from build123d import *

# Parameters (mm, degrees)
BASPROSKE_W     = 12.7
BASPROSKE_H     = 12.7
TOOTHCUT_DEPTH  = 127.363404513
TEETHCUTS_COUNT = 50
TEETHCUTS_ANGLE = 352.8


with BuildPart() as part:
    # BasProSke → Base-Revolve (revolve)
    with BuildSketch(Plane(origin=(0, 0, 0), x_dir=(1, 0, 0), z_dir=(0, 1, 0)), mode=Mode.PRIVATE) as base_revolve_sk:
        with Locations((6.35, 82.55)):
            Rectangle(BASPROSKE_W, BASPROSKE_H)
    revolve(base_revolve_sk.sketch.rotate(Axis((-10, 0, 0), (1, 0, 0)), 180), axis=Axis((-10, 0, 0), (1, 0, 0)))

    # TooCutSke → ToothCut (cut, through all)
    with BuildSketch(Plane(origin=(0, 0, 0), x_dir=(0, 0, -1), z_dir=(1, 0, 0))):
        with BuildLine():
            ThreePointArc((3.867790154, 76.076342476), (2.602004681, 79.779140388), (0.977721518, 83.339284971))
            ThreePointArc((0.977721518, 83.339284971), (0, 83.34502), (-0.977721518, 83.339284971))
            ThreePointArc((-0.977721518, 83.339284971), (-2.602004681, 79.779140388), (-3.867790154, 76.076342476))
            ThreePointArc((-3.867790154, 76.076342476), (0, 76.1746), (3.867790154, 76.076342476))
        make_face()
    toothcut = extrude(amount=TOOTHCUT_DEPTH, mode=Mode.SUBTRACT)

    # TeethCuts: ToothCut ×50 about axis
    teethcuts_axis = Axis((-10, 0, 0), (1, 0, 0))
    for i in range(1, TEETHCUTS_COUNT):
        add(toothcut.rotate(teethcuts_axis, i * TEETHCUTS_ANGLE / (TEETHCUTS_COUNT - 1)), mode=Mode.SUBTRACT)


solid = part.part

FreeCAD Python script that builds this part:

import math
import FreeCAD as App
import Part
import Sketcher

V = App.Vector
Q = App.Units.Quantity

doc = App.newDocument("Part")
body = doc.addObject("PartDesign::Body", "Body")

sketch1 = body.newObject("Sketcher::SketchObject", "Sketch")
sketch1.AttachmentSupport = (doc.getObject("XZ_Plane"), [""])
sketch1.MapMode = "FlatFace"
sketch1.addGeometry(Part.LineSegment(V(0, -89, 0), V(0, -76, 0)), False)
sketch1.addGeometry(Part.LineSegment(V(0, -76, 0), V(13, -76, 0)), False)
sketch1.addGeometry(Part.LineSegment(V(13, -76, 0), V(13, -89, 0)), False)
sketch1.addGeometry(Part.LineSegment(V(13, -89, 0), V(0, -89, 0)), False)
sketch1.addConstraint(Sketcher.Constraint("Coincident", 0, 2, 1, 1))
sketch1.addConstraint(Sketcher.Constraint("Coincident", 1, 2, 2, 1))
sketch1.addConstraint(Sketcher.Constraint("Coincident", 2, 2, 3, 1))
sketch1.addConstraint(Sketcher.Constraint("Coincident", 3, 2, 0, 1))
sketch1.addConstraint(Sketcher.Constraint("Vertical", 0))
sketch1.addConstraint(Sketcher.Constraint("Horizontal", 1))
sketch1.addConstraint(Sketcher.Constraint("Vertical", 2))
sketch1.addConstraint(Sketcher.Constraint("Horizontal", 3))
sketch1.addConstraint(Sketcher.Constraint("PointOnObject", 0, 2, -2))
sketch1.addConstraint(Sketcher.Constraint("Equal", 3, 0))
sketch1.addConstraint(Sketcher.Constraint("DistanceX", 1, 1, 1, 2, Q("0.5 in")))
sketch1.addConstraint(Sketcher.Constraint("DistanceY", 0, 2, -1, 1, Q("3 in")))
revolution = body.newObject("PartDesign::Revolution", "Revolution")
revolution.Profile = sketch1
revolution.ReferenceAxis = (sketch1, ["H_Axis"])
revolution.Angle = 360

sketch2 = body.newObject("Sketcher::SketchObject", "Sketch001")
sketch2.AttachmentSupport = (doc.getObject("YZ_Plane"), [""])
sketch2.MapMode = "FlatFace"
sketch2.addGeometry(Part.ArcOfCircle(Part.Circle(V(65.1, 34.3, 0), V(0, 0, 1), 39.7), math.radians(-73.95), math.radians(-62.65)), False)
sketch2.addGeometry(Part.ArcOfCircle(Part.Circle(V(0, 0, 0), V(0, 0, 1), 83.3), math.radians(-0.67), math.radians(0.67)), False)
sketch2.addGeometry(Part.ArcOfCircle(Part.Circle(V(65.1, -34.3, 0), V(0, 0, 1), 39.7), math.radians(62.65), math.radians(73.95)), False)
sketch2.addGeometry(Part.ArcOfCircle(Part.Circle(V(0, 0, 0), V(0, 0, 1), 76.2), math.radians(-2.91), math.radians(2.91)), False)
sketch2.addConstraint(Sketcher.Constraint("Coincident", 0, 2, 1, 1))
sketch2.addConstraint(Sketcher.Constraint("Coincident", 1, 2, 2, 1))
sketch2.addConstraint(Sketcher.Constraint("Coincident", 2, 2, 3, 2))
sketch2.addConstraint(Sketcher.Constraint("Coincident", 3, 1, 0, 1))
sketch2.addConstraint(Sketcher.Constraint("Coincident", 1, 3, -1, 1))
sketch2.addConstraint(Sketcher.Constraint("Coincident", 3, 3, -1, 1))
sketch2.addConstraint(Sketcher.Constraint("Equal", 0, 2))
sketch2.addConstraint(Sketcher.Constraint("Symmetric", 0, 3, 2, 3, -1))
sketch2.addConstraint(Sketcher.Constraint("Radius", 0, Q("1.5625 in")))
sketch2.addConstraint(Sketcher.Constraint("Radius", 3, Q("2.999 in")))
sketch2.addConstraint(Sketcher.Constraint("Radius", 1, Q("3.2813002 in")))
sketch2.addConstraint(Sketcher.Constraint("DistanceY", 0, 2, -1, 1, 0.977722))
sketch2.addConstraint(Sketcher.Constraint("DistanceY", -1, 1, 2, 2, 3.86779))
pocket1 = body.newObject("PartDesign::Pocket", "Pocket")
pocket1.Profile = sketch2
pocket1.Type = "ThroughAll"
pocket1.Reversed = True
doc.recompute()

polarpattern = body.newObject("PartDesign::PolarPattern", "PolarPattern")
polarpattern.Originals = [pocket1]
polarpattern.Axis = (doc.getObject("X_Axis"), [""])
polarpattern.Angle = 360
polarpattern.Occurrences = 50
body.Tip = polarpattern

doc.recompute()
